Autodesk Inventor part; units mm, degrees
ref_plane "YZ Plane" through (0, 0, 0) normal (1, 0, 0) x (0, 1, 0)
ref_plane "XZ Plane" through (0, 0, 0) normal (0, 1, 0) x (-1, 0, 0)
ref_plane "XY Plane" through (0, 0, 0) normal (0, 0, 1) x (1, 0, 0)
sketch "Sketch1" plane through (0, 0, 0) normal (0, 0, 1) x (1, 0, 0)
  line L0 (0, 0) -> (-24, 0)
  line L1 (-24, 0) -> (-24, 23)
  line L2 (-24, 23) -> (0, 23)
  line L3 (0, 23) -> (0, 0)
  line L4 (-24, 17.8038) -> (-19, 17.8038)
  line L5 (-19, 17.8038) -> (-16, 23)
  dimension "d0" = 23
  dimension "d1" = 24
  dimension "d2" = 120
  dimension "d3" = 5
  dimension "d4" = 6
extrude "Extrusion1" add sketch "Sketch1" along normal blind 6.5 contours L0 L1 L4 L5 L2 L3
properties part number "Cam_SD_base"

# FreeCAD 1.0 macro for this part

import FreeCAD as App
import Part
import Sketcher

V = App.Vector
Q = App.Units.Quantity


def add_polygon(sketch, points):
    """Adds a closed chain of lines whose ends are joined by coincident constraints."""
    first, n = sketch.GeometryCount, len(points)
    for a, b in zip(points, points[1:] + points[:1]):
        sketch.addGeometry(Part.LineSegment(App.Vector(*a, 0), App.Vector(*b, 0)), False)
    for i in range(n):
        sketch.addConstraint(Sketcher.Constraint("Coincident", first + i, 2, first + (i + 1) % n, 1))

doc = App.newDocument("Part")
body = doc.addObject("PartDesign::Body", "Body")

# Sketch on XY plane
sketch1 = body.newObject("Sketcher::SketchObject", "Sketch")
sketch1.AttachmentSupport = (doc.getObject("XY_Plane"), [""])
sketch1.MapMode = "FlatFace"
add_polygon(sketch1, [(-24, 0), (0, 0), (0, 23), (-16, 23), (-19, 17.8038), (-24, 17.8038)])  # lines 0-5
sketch1.addConstraint([
    Sketcher.Constraint("Horizontal", 0),
    Sketcher.Constraint("Vertical", 1),
    Sketcher.Constraint("Horizontal", 2),
    Sketcher.Constraint("Horizontal", 4),
    Sketcher.Constraint("Vertical", 5),
    Sketcher.Constraint("Coincident", 0, 2, -1, 1),
    Sketcher.Constraint("DistanceX", 0, 1, 0, 2, 24.0),
    Sketcher.Constraint("DistanceX", 4, 2, 4, 1, 5.0),
    Sketcher.Constraint("DistanceY", 1, 1, 1, 2, 23.0),
    Sketcher.Constraint("Angle", 3, Q("-119.9998 deg")),
    Sketcher.Constraint("Distance", 3, 6.0),
])
pad1 = body.newObject("PartDesign::Pad", "Pad")
pad1.Profile = sketch1
pad1.Length = 6.5

doc.recompute()
